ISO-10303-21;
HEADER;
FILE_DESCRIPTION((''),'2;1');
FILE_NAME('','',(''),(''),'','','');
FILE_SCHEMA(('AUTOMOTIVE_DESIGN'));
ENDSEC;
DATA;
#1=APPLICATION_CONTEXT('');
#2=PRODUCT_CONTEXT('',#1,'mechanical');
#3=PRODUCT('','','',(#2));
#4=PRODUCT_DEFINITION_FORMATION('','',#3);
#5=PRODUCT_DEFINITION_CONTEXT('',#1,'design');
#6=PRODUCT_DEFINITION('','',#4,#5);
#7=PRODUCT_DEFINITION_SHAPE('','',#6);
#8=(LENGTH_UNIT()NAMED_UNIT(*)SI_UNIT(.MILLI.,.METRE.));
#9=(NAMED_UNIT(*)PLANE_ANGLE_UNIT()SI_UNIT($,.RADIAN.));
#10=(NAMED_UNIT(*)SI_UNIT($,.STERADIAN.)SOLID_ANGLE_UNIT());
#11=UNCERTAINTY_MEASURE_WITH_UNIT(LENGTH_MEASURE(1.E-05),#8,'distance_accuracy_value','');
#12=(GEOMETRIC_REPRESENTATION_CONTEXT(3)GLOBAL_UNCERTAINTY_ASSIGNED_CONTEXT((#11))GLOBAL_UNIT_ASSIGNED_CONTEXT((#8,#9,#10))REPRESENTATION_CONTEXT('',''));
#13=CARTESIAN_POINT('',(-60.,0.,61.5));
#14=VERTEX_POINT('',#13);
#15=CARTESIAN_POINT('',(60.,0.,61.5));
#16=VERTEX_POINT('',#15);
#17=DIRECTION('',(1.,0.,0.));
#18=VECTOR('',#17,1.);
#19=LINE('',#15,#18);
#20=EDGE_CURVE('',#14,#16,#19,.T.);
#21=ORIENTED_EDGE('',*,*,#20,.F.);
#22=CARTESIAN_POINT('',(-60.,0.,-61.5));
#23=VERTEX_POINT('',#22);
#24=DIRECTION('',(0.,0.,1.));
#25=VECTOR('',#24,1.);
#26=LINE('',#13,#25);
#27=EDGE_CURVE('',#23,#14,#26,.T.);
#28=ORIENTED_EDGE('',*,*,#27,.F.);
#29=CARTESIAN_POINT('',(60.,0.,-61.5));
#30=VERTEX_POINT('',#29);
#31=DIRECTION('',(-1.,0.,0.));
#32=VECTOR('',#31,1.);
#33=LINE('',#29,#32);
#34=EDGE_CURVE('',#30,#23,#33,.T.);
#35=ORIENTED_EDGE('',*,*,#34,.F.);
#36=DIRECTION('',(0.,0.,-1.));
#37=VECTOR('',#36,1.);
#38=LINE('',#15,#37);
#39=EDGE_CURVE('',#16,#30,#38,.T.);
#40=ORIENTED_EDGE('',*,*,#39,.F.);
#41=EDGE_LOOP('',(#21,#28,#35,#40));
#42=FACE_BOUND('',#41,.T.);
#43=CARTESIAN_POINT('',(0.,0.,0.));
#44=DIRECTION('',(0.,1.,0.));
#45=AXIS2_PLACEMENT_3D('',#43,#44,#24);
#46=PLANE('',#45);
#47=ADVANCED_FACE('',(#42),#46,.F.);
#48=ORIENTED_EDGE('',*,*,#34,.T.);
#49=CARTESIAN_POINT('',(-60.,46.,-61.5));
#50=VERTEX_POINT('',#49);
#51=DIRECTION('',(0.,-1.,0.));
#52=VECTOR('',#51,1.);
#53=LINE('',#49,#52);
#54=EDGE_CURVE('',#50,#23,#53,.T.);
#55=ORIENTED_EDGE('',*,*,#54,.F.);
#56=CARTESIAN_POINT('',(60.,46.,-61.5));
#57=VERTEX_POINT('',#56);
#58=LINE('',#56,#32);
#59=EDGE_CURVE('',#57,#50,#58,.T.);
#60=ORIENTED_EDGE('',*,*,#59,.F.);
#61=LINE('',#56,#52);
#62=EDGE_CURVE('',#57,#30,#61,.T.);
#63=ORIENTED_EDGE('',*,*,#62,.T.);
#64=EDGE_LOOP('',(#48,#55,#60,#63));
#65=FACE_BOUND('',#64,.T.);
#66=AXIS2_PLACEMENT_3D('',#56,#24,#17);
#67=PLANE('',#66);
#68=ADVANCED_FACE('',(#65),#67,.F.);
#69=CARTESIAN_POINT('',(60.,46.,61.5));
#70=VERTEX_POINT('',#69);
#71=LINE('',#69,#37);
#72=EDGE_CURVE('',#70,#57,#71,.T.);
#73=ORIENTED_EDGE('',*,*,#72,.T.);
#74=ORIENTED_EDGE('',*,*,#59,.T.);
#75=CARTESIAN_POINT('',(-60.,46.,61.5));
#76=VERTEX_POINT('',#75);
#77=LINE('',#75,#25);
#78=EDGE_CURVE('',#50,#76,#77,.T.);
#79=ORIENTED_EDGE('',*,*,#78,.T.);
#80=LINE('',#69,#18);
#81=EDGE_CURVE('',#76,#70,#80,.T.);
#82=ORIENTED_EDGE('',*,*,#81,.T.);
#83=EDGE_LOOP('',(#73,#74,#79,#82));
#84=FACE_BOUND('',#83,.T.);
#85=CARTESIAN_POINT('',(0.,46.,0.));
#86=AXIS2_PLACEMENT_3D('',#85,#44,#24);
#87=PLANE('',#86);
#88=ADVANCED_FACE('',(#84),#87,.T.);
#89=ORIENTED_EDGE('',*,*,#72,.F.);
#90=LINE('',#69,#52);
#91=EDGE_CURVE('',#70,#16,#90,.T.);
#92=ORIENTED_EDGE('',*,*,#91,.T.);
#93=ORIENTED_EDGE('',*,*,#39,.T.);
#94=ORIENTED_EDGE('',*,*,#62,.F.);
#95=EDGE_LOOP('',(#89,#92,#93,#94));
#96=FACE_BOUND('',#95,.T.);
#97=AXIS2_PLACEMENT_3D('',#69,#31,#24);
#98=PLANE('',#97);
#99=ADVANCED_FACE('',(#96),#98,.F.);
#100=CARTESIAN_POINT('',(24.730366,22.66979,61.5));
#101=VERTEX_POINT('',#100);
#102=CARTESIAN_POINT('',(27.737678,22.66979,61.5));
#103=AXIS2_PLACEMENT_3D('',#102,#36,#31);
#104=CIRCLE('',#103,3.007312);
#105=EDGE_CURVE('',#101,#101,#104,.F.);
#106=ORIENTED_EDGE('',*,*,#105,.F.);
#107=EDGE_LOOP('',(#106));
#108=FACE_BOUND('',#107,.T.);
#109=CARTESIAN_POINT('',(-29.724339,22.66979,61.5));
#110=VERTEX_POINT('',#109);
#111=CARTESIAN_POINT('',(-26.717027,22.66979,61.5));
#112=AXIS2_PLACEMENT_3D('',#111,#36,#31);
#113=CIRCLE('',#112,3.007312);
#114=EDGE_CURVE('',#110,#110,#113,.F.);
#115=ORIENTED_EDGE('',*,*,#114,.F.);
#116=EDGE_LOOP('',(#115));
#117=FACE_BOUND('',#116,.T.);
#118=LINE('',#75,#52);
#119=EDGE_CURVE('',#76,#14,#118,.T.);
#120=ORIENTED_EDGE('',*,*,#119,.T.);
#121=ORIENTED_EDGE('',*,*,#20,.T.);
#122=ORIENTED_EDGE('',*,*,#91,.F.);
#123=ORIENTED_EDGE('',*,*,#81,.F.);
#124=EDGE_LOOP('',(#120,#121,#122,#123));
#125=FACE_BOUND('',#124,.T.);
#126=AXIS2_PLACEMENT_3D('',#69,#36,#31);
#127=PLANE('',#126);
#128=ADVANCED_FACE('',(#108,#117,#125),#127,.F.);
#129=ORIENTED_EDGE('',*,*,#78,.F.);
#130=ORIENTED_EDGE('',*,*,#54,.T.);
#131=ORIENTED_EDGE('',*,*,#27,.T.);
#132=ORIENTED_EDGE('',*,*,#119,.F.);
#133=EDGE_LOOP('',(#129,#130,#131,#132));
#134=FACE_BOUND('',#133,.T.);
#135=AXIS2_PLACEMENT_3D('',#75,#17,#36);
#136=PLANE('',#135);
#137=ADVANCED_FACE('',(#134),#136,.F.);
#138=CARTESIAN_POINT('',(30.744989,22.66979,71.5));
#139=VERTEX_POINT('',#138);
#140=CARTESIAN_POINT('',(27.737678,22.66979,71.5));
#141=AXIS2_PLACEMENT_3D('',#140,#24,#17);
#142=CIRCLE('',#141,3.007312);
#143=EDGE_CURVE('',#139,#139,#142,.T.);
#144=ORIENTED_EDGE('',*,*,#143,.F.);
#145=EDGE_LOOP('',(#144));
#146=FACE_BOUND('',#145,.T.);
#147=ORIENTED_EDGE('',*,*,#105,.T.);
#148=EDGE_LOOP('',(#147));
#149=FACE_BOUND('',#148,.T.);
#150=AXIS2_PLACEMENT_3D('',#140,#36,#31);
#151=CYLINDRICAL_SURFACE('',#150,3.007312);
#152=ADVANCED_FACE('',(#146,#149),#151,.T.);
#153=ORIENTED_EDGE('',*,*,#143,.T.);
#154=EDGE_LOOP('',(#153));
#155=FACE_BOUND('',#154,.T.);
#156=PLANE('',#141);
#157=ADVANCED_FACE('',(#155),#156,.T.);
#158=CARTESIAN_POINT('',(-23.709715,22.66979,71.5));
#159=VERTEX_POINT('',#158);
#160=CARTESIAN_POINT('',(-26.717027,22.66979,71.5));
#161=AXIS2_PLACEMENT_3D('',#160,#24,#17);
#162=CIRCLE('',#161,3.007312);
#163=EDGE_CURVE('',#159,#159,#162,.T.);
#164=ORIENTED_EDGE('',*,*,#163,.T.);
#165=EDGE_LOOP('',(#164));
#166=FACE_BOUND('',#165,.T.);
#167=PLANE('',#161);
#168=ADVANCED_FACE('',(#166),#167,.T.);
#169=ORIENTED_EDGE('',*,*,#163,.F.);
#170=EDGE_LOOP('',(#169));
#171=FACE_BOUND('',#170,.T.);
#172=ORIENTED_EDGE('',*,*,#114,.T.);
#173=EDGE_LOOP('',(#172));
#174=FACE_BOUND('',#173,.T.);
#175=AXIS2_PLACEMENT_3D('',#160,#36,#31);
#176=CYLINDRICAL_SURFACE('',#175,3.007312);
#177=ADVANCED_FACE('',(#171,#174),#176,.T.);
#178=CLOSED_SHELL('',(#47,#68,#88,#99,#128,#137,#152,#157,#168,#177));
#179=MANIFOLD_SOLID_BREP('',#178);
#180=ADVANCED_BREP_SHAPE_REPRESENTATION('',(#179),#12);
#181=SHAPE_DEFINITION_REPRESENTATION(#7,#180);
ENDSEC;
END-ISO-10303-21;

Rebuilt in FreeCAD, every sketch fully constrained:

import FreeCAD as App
import Part
import Sketcher
from FreeCAD import Vector
Q = App.Units.Quantity

doc = App.newDocument("Part")
body = doc.addObject("PartDesign::Body", "Body")

# Sketch on XZ plane
sketch1 = doc.addObject("Sketcher::SketchObject", "Sketch")
body.addObject(sketch1)
sketch1.AttachmentSupport = (doc.XZ_Plane, [""])
sketch1.MapMode = "FlatFace"
sketch1.addGeometry(Part.LineSegment(Vector(-60, -62, 0), Vector(-60, 62, 0)), False)
sketch1.addGeometry(Part.LineSegment(Vector(-60, 62, 0), Vector(60, 62, 0)), False)
sketch1.addGeometry(Part.LineSegment(Vector(60, 62, 0), Vector(60, -62, 0)), False)
sketch1.addGeometry(Part.LineSegment(Vector(60, -62, 0), Vector(-60, -62, 0)), False)
sketch1.addConstraint(Sketcher.Constraint("Coincident", 0, 2, 1, 1))
sketch1.addConstraint(Sketcher.Constraint("Coincident", 1, 2, 2, 1))
sketch1.addConstraint(Sketcher.Constraint("Coincident", 2, 2, 3, 1))
sketch1.addConstraint(Sketcher.Constraint("Coincident", 3, 2, 0, 1))
sketch1.addConstraint(Sketcher.Constraint("Vertical", 0))
sketch1.addConstraint(Sketcher.Constraint("Horizontal", 1))
sketch1.addConstraint(Sketcher.Constraint("Vertical", 2))
sketch1.addConstraint(Sketcher.Constraint("Horizontal", 3))
sketch1.addConstraint(Sketcher.Constraint("Symmetric", 0, 2, 2, 2, -1, 1))
sketch1.addConstraint(Sketcher.Constraint("DistanceX", 1, 1, 1, 2, Q("120 mm")))
sketch1.addConstraint(Sketcher.Constraint("DistanceY", 0, 1, 0, 2, Q("123 mm")))
pad1 = doc.addObject("PartDesign::Pad", "Pad")
body.addObject(pad1)
pad1.Profile = sketch1
pad1.Length = 46
pad1.Reversed = True

# Sketch on XY plane
sketch2 = doc.addObject("Sketcher::SketchObject", "Sketch001")
body.addObject(sketch2)
sketch2.AttachmentSupport = (doc.XY_Plane, [""])
sketch2.MapMode = "FlatFace"
sketch2.AttachmentOffset = App.Placement(Vector(0, 0, 61.5), App.Rotation())
sketch2.addGeometry(Part.Circle(Vector(-26.7, 22.7, 0), Vector(0, 0, 1), 3), False)
sketch2.addGeometry(Part.Circle(Vector(27.7, 22.7, 0), Vector(0, 0, 1), 3), False)
sketch2.addConstraint(Sketcher.Constraint("Equal", 0, 1))
sketch2.addConstraint(Sketcher.Constraint("Horizontal", 0, 3, 1, 3))
sketch2.addConstraint(Sketcher.Constraint("Diameter", 0, Q("6.014623 mm")))
sketch2.addConstraint(Sketcher.Constraint("DistanceY", -1, 1, 0, 3, Q("22.66979 mm")))
sketch2.addConstraint(Sketcher.Constraint("DistanceX", 0, 3, -1, 1, Q("26.717027 mm")))
sketch2.addConstraint(Sketcher.Constraint("DistanceX", -1, 1, 1, 3, Q("27.737678 mm")))
pad2 = doc.addObject("PartDesign::Pad", "Pad001")
body.addObject(pad2)
pad2.Profile = sketch2
pad2.Length = 10

doc.recompute()
